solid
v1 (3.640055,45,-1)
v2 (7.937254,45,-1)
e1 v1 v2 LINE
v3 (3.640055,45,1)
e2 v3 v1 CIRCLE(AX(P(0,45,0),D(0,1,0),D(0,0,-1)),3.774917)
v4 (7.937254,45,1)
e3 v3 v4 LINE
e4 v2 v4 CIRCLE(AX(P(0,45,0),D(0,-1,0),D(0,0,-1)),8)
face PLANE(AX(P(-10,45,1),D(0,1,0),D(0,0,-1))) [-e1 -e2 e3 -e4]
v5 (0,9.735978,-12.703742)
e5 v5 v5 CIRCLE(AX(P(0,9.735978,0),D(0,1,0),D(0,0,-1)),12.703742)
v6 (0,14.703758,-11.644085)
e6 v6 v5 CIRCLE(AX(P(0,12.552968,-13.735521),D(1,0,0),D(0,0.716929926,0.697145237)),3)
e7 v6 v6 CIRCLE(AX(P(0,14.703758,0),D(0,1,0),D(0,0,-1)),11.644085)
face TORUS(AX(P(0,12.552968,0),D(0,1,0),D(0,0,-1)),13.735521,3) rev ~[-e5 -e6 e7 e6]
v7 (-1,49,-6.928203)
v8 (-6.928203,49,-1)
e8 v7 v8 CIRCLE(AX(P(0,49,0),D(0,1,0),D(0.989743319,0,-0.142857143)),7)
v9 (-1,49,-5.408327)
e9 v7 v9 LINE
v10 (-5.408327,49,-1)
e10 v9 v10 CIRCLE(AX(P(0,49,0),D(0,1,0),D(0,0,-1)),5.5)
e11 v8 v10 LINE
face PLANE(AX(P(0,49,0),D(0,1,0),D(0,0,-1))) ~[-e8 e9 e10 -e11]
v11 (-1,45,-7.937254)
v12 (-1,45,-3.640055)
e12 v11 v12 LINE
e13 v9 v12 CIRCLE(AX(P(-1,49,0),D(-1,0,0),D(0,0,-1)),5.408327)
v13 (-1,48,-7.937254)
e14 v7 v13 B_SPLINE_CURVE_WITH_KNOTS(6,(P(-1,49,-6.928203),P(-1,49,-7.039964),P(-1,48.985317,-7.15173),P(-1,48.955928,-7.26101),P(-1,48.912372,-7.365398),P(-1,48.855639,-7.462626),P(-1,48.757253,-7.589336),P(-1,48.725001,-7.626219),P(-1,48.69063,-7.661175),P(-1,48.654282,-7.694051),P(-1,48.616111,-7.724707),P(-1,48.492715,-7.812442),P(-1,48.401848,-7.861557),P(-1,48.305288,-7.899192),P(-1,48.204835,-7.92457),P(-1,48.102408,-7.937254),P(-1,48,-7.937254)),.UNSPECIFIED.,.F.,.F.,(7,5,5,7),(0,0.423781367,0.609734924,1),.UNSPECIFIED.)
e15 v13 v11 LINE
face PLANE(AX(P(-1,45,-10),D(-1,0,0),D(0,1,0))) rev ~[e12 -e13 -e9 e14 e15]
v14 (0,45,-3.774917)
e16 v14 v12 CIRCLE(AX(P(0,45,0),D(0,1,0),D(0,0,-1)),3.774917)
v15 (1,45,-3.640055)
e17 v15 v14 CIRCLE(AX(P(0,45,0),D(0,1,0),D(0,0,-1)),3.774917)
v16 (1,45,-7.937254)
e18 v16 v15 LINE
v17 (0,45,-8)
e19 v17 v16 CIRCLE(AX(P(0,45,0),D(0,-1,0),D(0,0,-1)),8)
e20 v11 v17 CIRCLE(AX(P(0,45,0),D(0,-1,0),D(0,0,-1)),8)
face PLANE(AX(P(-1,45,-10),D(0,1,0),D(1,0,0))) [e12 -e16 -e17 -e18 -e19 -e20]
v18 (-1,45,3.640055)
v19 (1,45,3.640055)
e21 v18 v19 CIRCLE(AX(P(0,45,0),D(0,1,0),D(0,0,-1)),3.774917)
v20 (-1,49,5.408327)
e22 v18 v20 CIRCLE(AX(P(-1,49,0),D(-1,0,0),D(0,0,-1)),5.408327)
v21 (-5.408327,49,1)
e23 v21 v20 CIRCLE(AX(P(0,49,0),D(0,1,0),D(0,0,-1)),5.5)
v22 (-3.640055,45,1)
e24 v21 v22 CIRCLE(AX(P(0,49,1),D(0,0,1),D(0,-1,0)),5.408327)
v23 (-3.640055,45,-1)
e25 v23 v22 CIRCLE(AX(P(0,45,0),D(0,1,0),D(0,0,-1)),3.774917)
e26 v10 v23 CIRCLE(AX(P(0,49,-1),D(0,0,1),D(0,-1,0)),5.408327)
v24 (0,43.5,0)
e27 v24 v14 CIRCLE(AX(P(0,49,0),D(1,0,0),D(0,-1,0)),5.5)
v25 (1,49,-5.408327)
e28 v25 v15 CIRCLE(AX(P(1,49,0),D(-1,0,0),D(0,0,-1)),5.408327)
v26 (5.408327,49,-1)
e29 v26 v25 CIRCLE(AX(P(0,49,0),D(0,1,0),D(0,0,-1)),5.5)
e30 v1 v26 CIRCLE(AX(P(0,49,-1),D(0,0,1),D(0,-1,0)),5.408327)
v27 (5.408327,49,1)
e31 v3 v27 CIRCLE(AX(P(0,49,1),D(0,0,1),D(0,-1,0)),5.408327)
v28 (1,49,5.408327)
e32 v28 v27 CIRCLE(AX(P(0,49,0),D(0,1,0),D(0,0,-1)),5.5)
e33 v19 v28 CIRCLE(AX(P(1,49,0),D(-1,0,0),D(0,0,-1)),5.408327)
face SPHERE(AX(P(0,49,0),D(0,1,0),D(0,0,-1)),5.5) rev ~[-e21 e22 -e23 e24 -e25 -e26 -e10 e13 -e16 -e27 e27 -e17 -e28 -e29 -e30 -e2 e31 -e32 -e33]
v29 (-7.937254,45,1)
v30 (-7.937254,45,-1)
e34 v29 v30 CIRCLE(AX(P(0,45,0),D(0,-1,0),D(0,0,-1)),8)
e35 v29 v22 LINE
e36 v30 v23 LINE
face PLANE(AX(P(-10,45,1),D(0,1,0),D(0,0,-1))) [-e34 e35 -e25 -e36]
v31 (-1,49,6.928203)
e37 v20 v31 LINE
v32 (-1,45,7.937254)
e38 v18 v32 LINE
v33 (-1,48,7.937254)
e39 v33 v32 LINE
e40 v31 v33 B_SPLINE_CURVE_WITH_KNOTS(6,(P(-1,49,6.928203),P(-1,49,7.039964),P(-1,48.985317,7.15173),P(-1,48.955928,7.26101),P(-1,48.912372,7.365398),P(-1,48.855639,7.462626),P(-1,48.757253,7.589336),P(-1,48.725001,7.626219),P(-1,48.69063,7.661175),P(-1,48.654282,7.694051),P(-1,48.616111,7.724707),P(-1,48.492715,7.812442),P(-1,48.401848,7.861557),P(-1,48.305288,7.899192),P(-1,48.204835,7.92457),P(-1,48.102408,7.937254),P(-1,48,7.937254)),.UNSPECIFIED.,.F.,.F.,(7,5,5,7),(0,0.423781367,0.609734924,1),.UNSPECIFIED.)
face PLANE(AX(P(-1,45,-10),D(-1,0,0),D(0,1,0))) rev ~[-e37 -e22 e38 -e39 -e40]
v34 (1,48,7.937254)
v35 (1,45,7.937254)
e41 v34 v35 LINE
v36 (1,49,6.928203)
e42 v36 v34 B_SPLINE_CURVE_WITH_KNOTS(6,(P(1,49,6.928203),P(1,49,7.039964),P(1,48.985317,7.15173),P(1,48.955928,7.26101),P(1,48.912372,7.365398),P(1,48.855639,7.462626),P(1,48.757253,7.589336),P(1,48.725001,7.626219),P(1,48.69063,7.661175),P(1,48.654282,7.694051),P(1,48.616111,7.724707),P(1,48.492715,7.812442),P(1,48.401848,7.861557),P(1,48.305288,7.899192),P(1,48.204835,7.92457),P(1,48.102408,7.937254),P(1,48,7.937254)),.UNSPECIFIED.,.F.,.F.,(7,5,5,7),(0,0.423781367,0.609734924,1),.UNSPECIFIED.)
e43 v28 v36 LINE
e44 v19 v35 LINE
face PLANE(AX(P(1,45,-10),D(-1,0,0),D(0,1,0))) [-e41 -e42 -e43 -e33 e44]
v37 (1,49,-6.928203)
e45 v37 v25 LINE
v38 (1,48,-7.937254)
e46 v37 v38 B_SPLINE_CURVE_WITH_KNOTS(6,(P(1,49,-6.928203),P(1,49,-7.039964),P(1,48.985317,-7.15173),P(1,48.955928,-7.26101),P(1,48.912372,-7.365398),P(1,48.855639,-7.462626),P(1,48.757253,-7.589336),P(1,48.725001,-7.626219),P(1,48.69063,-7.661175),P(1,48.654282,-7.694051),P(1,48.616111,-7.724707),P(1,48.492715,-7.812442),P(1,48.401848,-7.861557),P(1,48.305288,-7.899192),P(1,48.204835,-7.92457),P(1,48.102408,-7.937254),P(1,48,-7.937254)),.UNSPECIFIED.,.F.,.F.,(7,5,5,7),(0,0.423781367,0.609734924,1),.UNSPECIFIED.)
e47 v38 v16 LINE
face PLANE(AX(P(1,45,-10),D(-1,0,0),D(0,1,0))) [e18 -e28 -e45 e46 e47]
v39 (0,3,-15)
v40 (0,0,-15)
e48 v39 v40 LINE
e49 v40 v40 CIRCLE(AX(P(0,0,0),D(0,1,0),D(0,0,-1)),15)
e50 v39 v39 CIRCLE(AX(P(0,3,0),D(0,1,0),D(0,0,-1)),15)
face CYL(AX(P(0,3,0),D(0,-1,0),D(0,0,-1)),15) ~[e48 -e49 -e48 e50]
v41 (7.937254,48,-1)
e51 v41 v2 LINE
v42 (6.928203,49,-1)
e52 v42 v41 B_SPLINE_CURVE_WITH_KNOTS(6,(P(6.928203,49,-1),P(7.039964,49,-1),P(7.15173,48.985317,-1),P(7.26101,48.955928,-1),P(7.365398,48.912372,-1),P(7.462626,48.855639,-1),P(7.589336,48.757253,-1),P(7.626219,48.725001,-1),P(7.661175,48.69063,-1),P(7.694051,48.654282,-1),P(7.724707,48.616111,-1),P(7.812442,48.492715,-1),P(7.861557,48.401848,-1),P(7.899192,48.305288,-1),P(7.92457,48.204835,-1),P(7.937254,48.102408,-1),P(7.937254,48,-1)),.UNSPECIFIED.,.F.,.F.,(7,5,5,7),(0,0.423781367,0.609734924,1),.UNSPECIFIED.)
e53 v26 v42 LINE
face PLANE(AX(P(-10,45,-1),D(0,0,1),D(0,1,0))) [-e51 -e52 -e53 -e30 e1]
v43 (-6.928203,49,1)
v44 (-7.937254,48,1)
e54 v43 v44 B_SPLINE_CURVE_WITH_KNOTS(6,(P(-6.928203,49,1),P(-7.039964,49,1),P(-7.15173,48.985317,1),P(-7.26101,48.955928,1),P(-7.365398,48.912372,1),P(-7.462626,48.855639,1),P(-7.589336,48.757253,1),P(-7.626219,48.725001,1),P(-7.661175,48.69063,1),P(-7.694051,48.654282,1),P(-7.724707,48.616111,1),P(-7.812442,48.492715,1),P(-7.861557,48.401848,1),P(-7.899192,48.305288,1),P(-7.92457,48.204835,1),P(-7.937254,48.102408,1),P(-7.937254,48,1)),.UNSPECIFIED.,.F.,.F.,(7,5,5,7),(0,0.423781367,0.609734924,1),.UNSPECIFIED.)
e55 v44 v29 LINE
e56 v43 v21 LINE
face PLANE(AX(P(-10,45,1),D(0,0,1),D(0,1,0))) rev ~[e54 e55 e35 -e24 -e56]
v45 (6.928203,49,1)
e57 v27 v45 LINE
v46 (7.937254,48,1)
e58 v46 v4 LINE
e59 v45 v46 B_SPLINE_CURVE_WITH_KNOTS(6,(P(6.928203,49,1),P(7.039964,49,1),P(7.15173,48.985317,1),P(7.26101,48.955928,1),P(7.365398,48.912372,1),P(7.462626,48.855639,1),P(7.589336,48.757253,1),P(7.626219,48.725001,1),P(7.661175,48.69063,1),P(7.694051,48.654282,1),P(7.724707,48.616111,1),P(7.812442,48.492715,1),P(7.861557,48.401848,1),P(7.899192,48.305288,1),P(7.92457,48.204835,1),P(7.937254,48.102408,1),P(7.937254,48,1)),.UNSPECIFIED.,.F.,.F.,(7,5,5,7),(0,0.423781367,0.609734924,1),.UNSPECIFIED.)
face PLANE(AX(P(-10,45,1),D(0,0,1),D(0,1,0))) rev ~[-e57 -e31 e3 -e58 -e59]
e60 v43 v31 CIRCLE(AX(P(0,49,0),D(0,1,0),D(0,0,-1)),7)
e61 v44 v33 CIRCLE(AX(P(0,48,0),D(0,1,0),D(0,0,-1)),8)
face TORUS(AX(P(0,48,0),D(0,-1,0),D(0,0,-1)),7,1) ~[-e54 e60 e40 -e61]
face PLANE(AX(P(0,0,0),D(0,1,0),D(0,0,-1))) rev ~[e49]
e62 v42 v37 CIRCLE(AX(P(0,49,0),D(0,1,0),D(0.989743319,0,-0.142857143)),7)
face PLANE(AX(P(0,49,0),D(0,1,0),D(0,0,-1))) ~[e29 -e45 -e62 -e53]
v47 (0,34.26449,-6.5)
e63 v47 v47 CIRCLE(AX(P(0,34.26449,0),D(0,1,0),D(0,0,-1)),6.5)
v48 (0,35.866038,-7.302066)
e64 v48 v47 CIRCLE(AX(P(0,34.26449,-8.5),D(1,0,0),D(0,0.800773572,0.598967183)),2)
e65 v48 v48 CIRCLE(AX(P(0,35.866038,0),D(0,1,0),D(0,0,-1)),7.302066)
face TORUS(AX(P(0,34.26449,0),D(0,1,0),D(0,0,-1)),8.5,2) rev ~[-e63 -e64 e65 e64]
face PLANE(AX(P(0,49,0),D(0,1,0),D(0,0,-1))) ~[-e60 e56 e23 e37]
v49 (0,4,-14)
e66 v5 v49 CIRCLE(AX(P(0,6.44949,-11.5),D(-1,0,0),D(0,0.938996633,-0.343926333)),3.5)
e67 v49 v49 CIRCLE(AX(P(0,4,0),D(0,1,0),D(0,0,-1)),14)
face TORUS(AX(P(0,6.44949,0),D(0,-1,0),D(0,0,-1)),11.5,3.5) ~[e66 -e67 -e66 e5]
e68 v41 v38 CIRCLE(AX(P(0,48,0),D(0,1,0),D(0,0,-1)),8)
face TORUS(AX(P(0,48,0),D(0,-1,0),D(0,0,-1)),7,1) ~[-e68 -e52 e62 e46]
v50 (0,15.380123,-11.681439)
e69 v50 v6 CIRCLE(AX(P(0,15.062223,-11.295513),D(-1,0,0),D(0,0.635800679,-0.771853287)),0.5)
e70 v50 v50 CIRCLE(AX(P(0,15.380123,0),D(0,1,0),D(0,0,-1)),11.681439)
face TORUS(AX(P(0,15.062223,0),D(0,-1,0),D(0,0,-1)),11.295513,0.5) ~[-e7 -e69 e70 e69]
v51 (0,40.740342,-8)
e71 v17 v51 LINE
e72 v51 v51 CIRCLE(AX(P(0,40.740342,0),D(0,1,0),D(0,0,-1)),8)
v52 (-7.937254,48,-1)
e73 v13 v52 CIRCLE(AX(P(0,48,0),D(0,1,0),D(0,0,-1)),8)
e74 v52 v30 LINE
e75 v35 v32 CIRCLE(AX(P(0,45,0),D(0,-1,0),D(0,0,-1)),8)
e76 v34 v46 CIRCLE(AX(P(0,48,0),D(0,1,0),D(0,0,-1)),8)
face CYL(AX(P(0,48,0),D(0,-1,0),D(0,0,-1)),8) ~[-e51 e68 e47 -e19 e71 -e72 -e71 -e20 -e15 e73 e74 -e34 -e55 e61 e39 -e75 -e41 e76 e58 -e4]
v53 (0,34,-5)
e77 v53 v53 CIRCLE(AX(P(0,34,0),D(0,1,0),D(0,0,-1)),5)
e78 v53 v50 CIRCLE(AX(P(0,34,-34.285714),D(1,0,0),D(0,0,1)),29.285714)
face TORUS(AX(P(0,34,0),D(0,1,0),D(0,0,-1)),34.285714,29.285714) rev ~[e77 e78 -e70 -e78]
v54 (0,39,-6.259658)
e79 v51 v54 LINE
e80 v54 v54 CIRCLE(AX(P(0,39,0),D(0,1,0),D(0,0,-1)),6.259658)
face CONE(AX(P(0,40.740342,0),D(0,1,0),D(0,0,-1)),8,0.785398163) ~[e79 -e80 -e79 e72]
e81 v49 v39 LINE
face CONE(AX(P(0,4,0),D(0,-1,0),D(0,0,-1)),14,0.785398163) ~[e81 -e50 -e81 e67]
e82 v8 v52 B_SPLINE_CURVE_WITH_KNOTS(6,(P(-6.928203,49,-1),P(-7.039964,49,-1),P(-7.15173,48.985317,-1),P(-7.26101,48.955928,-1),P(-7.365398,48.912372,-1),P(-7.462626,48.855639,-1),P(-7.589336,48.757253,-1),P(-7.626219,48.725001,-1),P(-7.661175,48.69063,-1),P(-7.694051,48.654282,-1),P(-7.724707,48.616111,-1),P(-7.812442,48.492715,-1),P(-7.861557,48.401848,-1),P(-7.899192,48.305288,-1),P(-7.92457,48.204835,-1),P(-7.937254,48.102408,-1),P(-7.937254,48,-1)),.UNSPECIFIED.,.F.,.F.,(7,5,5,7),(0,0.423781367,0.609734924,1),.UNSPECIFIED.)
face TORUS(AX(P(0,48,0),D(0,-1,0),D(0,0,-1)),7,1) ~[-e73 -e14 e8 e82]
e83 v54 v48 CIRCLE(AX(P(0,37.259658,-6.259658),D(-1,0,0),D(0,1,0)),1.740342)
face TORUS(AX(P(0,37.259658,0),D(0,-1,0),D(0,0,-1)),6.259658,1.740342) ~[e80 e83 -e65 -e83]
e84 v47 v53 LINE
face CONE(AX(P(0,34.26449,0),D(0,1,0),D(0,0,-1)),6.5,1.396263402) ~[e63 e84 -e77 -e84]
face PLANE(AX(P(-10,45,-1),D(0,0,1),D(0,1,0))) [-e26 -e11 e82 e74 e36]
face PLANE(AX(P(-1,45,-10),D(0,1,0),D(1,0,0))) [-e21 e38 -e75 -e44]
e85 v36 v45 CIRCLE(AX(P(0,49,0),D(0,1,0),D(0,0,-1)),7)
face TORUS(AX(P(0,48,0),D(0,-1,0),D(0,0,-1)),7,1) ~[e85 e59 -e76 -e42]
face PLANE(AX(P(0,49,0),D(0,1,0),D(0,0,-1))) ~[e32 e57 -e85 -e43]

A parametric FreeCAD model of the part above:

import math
import FreeCAD as App
import Part
import Sketcher
from FreeCAD import Vector
Q = App.Units.Quantity


def add_polygon(sketch, points):
    """Adds a closed chain of lines whose ends are joined by coincident constraints."""
    first, n = sketch.GeometryCount, len(points)
    for a, b in zip(points, points[1:] + points[:1]):
        sketch.addGeometry(Part.LineSegment(App.Vector(*a, 0), App.Vector(*b, 0)), False)
    for i in range(n):
        sketch.addConstraint(Sketcher.Constraint("Coincident", first + i, 2, first + (i + 1) % n, 1))

doc = App.newDocument("Part")
body = doc.addObject("PartDesign::Body", "Body")

sketch1 = doc.addObject("Sketcher::SketchObject", "Sketch")
body.addObject(sketch1)
sketch1.AttachmentSupport = (doc.YZ_Plane, [""])
sketch1.MapMode = "FlatFace"
sketch1.addGeometry(Part.LineSegment(Vector(43.5, 0, 0), Vector(0, 0, 0)), False)
sketch1.addGeometry(Part.LineSegment(Vector(0, 0, 0), Vector(0, -15, 0)), False)
sketch1.addGeometry(Part.LineSegment(Vector(0, -15, 0), Vector(3, -15, 0)), False)
sketch1.addGeometry(Part.LineSegment(Vector(3, -15, 0), Vector(4, -14, 0)), False)
sketch1.addGeometry(Part.ArcOfCircle(Part.Circle(Vector(6.4, -11.5, 0), Vector(0, 0, 1), 3.5), math.radians(-134), math.radians(-20)), False)
sketch1.addGeometry(Part.ArcOfCircle(Part.Circle(Vector(12.6, -13.7, 0), Vector(0, 0, 1), 3), math.radians(44), math.radians(160)), False)
sketch1.addGeometry(Part.ArcOfCircle(Part.Circle(Vector(15.1, -11.3, 0), Vector(0, 0, 1), 0.5), math.radians(-136), math.radians(-51)), False)
sketch1.addGeometry(Part.ArcOfCircle(Part.Circle(Vector(34, -34.3, 0), Vector(0, 0, 1), 29.3), math.radians(90), math.radians(129)), False)
sketch1.addGeometry(Part.LineSegment(Vector(34, -5, 0), Vector(34.3, -6.5, 0)), False)
sketch1.addGeometry(Part.ArcOfCircle(Part.Circle(Vector(34.3, -8.5, 0), Vector(0, 0, 1), 2), math.radians(37), math.radians(90)), False)
sketch1.addGeometry(Part.ArcOfCircle(Part.Circle(Vector(37.3, -6.3, 0), Vector(0, 0, 1), 1.7), math.radians(-143), math.radians(0)), False)
sketch1.addGeometry(Part.LineSegment(Vector(39, -6.3, 0), Vector(40.7, -8, 0)), False)
sketch1.addGeometry(Part.LineSegment(Vector(40.7, -8, 0), Vector(48, -8, 0)), False)
sketch1.addGeometry(Part.ArcOfCircle(Part.Circle(Vector(48, -7, 0), Vector(0, 0, 1), 1), math.radians(-90), math.radians(0)), False)
sketch1.addGeometry(Part.LineSegment(Vector(49, -7, 0), Vector(49, -5.5, 0)), False)
sketch1.addGeometry(Part.ArcOfCircle(Part.Circle(Vector(49, 0, 0), Vector(0, 0, 1), 5.5), math.radians(180), math.radians(270)), False)
sketch1.addConstraint(Sketcher.Constraint("Coincident", 0, 2, 1, 1))
sketch1.addConstraint(Sketcher.Constraint("Coincident", 1, 2, 2, 1))
sketch1.addConstraint(Sketcher.Constraint("Coincident", 2, 2, 3, 1))
sketch1.addConstraint(Sketcher.Constraint("Coincident", 3, 2, 4, 1))
sketch1.addConstraint(Sketcher.Constraint("Tangent", 4, 2, 5, 2))
sketch1.addConstraint(Sketcher.Constraint("Tangent", 5, 1, 6, 1))
sketch1.addConstraint(Sketcher.Constraint("Tangent", 6, 2, 7, 2))
sketch1.addConstraint(Sketcher.Constraint("Coincident", 7, 1, 8, 1))
sketch1.addConstraint(Sketcher.Constraint("Coincident", 8, 2, 9, 2))
sketch1.addConstraint(Sketcher.Constraint("Tangent", 9, 1, 10, 1))
sketch1.addConstraint(Sketcher.Constraint("Coincident", 10, 2, 11, 1))
sketch1.addConstraint(Sketcher.Constraint("Coincident", 11, 2, 12, 1))
sketch1.addConstraint(Sketcher.Constraint("Tangent", 12, 2, 13, 1))
sketch1.addConstraint(Sketcher.Constraint("Tangent", 13, 2, 14, 1))
sketch1.addConstraint(Sketcher.Constraint("Coincident", 14, 2, 15, 2))
sketch1.addConstraint(Sketcher.Constraint("Coincident", 15, 1, 0, 1))
sketch1.addConstraint(Sketcher.Constraint("Horizontal", 0))
sketch1.addConstraint(Sketcher.Constraint("Vertical", 1))
sketch1.addConstraint(Sketcher.Constraint("Horizontal", 2))
sketch1.addConstraint(Sketcher.Constraint("Horizontal", 12))
sketch1.addConstraint(Sketcher.Constraint("Vertical", 14))
sketch1.addConstraint(Sketcher.Constraint("Coincident", 0, 2, -1, 1))
sketch1.addConstraint(Sketcher.Constraint("PointOnObject", 15, 3, -1))
sketch1.addConstraint(Sketcher.Constraint("Perpendicular", 3, 11))
sketch1.addConstraint(Sketcher.Constraint("Vertical", 9, 3, 8, 2))
sketch1.addConstraint(Sketcher.Constraint("Vertical", 15, 3, 13, 2))
sketch1.addConstraint(Sketcher.Constraint("Radius", 5, 3.0))
sketch1.addConstraint(Sketcher.Constraint("Radius", 9, 2.0))
sketch1.addConstraint(Sketcher.Constraint("Radius", 13, 1.0))
sketch1.addConstraint(Sketcher.Constraint("Radius", 4, 3.5))
sketch1.addConstraint(Sketcher.Constraint("Radius", 6, 0.5))
sketch1.addConstraint(Sketcher.Constraint("Radius", 15, 5.5))
sketch1.addConstraint(Sketcher.Constraint("DistanceX", 2, 1, 2, 2, 3.0))
sketch1.addConstraint(Sketcher.Constraint("DistanceY", 1, 2, 1, 1, 15.0))
sketch1.addConstraint(Sketcher.Constraint("Angle", 3, Q("45 deg")))
sketch1.addConstraint(Sketcher.Constraint("Angle", 8, Q("-80 deg")))
sketch1.addConstraint(Sketcher.Constraint("DistanceX", 0, 2, 0, 1, 43.5))
sketch1.addConstraint(Sketcher.Constraint("DistanceY", 14, 1, 14, 2, 1.5))
sketch1.addConstraint(Sketcher.Constraint("DistanceX", -1, 1, 7, 3, 34.0))
sketch1.addConstraint(Sketcher.Constraint("DistanceX", -1, 1, 3, 2, 4.0))
sketch1.addConstraint(Sketcher.Constraint("DistanceX", -1, 1, 7, 1, 34.0))
sketch1.addConstraint(Sketcher.Constraint("DistanceY", 7, 1, -1, 1, 5.0))
sketch1.addConstraint(Sketcher.Constraint("DistanceX", -1, 1, 10, 2, 39.0))
sketch1.addConstraint(Sketcher.Constraint("DistanceY", 4, 3, 9, 3, 3.0))
sketch1.addConstraint(Sketcher.Constraint("DistanceY", 4, 3, -1, 1, 11.5))
sketch1.addConstraint(Sketcher.Constraint("Radius", 7, 29.285714))
sketch1.addConstraint(Sketcher.Constraint("Radius", 10, 1.740342))
sketch1.addConstraint(Sketcher.Constraint("DistanceY", 7, 3, 6, 3, 22.990201))
sketch1.addConstraint(Sketcher.Constraint("DistanceX", 12, 1, 12, 2, 7.259658))
revolution = doc.addObject("PartDesign::Revolution", "Revolution")
body.addObject(revolution)
revolution.Profile = sketch1
revolution.ReferenceAxis = (sketch1, ["H_Axis"])
revolution.Angle = 360

sketch2 = doc.addObject("Sketcher::SketchObject", "Sketch001")
body.addObject(sketch2)
sketch2.AttachmentSupport = (doc.YZ_Plane, [""])
sketch2.MapMode = "FlatFace"
add_polygon(sketch2, [(49, 1), (45, 1), (45, -1), (49, -1)])
sketch2.addConstraint(Sketcher.Constraint("Horizontal", 0))
sketch2.addConstraint(Sketcher.Constraint("Vertical", 1))
sketch2.addConstraint(Sketcher.Constraint("Horizontal", 2))
sketch2.addConstraint(Sketcher.Constraint("Vertical", 3))
sketch2.addConstraint(Sketcher.Constraint("DistanceX", 0, 2, 0, 1, 4.0))
sketch2.addConstraint(Sketcher.Constraint("DistanceY", 1, 2, 1, 1, 2.0))
sketch2.addConstraint(Sketcher.Constraint("DistanceX", -1, 1, 0, 2, 45.0))
sketch2.addConstraint(Sketcher.Constraint("DistanceY", -1, 1, 0, 2, 1.0))
pocket1 = doc.addObject("PartDesign::Pocket", "Pocket")
body.addObject(pocket1)
pocket1.Profile = sketch2
pocket1.Type = "ThroughAll"
pocket1.Midplane = True

sketch3 = doc.addObject("Sketcher::SketchObject", "Sketch002")
body.addObject(sketch3)
sketch3.AttachmentSupport = (doc.XY_Plane, [""])
sketch3.MapMode = "FlatFace"
add_polygon(sketch3, [(-1, 49), (-1, 45), (1, 45), (1, 49)])
sketch3.addConstraint(Sketcher.Constraint("Vertical", 0))
sketch3.addConstraint(Sketcher.Constraint("Horizontal", 1))
sketch3.addConstraint(Sketcher.Constraint("Vertical", 2))
sketch3.addConstraint(Sketcher.Constraint("Horizontal", 3))
sketch3.addConstraint(Sketcher.Constraint("DistanceX", 1, 1, 1, 2, 2.0))
sketch3.addConstraint(Sketcher.Constraint("DistanceY", 0, 2, 0, 1, 4.0))
sketch3.addConstraint(Sketcher.Constraint("DistanceX", 0, 2, -1, 1, 1.0))
sketch3.addConstraint(Sketcher.Constraint("DistanceY", -1, 1, 0, 2, 45.0))
pocket2 = doc.addObject("PartDesign::Pocket", "Pocket001")
body.addObject(pocket2)
pocket2.Profile = sketch3
pocket2.Type = "ThroughAll"
pocket2.Midplane = True

doc.recompute()
